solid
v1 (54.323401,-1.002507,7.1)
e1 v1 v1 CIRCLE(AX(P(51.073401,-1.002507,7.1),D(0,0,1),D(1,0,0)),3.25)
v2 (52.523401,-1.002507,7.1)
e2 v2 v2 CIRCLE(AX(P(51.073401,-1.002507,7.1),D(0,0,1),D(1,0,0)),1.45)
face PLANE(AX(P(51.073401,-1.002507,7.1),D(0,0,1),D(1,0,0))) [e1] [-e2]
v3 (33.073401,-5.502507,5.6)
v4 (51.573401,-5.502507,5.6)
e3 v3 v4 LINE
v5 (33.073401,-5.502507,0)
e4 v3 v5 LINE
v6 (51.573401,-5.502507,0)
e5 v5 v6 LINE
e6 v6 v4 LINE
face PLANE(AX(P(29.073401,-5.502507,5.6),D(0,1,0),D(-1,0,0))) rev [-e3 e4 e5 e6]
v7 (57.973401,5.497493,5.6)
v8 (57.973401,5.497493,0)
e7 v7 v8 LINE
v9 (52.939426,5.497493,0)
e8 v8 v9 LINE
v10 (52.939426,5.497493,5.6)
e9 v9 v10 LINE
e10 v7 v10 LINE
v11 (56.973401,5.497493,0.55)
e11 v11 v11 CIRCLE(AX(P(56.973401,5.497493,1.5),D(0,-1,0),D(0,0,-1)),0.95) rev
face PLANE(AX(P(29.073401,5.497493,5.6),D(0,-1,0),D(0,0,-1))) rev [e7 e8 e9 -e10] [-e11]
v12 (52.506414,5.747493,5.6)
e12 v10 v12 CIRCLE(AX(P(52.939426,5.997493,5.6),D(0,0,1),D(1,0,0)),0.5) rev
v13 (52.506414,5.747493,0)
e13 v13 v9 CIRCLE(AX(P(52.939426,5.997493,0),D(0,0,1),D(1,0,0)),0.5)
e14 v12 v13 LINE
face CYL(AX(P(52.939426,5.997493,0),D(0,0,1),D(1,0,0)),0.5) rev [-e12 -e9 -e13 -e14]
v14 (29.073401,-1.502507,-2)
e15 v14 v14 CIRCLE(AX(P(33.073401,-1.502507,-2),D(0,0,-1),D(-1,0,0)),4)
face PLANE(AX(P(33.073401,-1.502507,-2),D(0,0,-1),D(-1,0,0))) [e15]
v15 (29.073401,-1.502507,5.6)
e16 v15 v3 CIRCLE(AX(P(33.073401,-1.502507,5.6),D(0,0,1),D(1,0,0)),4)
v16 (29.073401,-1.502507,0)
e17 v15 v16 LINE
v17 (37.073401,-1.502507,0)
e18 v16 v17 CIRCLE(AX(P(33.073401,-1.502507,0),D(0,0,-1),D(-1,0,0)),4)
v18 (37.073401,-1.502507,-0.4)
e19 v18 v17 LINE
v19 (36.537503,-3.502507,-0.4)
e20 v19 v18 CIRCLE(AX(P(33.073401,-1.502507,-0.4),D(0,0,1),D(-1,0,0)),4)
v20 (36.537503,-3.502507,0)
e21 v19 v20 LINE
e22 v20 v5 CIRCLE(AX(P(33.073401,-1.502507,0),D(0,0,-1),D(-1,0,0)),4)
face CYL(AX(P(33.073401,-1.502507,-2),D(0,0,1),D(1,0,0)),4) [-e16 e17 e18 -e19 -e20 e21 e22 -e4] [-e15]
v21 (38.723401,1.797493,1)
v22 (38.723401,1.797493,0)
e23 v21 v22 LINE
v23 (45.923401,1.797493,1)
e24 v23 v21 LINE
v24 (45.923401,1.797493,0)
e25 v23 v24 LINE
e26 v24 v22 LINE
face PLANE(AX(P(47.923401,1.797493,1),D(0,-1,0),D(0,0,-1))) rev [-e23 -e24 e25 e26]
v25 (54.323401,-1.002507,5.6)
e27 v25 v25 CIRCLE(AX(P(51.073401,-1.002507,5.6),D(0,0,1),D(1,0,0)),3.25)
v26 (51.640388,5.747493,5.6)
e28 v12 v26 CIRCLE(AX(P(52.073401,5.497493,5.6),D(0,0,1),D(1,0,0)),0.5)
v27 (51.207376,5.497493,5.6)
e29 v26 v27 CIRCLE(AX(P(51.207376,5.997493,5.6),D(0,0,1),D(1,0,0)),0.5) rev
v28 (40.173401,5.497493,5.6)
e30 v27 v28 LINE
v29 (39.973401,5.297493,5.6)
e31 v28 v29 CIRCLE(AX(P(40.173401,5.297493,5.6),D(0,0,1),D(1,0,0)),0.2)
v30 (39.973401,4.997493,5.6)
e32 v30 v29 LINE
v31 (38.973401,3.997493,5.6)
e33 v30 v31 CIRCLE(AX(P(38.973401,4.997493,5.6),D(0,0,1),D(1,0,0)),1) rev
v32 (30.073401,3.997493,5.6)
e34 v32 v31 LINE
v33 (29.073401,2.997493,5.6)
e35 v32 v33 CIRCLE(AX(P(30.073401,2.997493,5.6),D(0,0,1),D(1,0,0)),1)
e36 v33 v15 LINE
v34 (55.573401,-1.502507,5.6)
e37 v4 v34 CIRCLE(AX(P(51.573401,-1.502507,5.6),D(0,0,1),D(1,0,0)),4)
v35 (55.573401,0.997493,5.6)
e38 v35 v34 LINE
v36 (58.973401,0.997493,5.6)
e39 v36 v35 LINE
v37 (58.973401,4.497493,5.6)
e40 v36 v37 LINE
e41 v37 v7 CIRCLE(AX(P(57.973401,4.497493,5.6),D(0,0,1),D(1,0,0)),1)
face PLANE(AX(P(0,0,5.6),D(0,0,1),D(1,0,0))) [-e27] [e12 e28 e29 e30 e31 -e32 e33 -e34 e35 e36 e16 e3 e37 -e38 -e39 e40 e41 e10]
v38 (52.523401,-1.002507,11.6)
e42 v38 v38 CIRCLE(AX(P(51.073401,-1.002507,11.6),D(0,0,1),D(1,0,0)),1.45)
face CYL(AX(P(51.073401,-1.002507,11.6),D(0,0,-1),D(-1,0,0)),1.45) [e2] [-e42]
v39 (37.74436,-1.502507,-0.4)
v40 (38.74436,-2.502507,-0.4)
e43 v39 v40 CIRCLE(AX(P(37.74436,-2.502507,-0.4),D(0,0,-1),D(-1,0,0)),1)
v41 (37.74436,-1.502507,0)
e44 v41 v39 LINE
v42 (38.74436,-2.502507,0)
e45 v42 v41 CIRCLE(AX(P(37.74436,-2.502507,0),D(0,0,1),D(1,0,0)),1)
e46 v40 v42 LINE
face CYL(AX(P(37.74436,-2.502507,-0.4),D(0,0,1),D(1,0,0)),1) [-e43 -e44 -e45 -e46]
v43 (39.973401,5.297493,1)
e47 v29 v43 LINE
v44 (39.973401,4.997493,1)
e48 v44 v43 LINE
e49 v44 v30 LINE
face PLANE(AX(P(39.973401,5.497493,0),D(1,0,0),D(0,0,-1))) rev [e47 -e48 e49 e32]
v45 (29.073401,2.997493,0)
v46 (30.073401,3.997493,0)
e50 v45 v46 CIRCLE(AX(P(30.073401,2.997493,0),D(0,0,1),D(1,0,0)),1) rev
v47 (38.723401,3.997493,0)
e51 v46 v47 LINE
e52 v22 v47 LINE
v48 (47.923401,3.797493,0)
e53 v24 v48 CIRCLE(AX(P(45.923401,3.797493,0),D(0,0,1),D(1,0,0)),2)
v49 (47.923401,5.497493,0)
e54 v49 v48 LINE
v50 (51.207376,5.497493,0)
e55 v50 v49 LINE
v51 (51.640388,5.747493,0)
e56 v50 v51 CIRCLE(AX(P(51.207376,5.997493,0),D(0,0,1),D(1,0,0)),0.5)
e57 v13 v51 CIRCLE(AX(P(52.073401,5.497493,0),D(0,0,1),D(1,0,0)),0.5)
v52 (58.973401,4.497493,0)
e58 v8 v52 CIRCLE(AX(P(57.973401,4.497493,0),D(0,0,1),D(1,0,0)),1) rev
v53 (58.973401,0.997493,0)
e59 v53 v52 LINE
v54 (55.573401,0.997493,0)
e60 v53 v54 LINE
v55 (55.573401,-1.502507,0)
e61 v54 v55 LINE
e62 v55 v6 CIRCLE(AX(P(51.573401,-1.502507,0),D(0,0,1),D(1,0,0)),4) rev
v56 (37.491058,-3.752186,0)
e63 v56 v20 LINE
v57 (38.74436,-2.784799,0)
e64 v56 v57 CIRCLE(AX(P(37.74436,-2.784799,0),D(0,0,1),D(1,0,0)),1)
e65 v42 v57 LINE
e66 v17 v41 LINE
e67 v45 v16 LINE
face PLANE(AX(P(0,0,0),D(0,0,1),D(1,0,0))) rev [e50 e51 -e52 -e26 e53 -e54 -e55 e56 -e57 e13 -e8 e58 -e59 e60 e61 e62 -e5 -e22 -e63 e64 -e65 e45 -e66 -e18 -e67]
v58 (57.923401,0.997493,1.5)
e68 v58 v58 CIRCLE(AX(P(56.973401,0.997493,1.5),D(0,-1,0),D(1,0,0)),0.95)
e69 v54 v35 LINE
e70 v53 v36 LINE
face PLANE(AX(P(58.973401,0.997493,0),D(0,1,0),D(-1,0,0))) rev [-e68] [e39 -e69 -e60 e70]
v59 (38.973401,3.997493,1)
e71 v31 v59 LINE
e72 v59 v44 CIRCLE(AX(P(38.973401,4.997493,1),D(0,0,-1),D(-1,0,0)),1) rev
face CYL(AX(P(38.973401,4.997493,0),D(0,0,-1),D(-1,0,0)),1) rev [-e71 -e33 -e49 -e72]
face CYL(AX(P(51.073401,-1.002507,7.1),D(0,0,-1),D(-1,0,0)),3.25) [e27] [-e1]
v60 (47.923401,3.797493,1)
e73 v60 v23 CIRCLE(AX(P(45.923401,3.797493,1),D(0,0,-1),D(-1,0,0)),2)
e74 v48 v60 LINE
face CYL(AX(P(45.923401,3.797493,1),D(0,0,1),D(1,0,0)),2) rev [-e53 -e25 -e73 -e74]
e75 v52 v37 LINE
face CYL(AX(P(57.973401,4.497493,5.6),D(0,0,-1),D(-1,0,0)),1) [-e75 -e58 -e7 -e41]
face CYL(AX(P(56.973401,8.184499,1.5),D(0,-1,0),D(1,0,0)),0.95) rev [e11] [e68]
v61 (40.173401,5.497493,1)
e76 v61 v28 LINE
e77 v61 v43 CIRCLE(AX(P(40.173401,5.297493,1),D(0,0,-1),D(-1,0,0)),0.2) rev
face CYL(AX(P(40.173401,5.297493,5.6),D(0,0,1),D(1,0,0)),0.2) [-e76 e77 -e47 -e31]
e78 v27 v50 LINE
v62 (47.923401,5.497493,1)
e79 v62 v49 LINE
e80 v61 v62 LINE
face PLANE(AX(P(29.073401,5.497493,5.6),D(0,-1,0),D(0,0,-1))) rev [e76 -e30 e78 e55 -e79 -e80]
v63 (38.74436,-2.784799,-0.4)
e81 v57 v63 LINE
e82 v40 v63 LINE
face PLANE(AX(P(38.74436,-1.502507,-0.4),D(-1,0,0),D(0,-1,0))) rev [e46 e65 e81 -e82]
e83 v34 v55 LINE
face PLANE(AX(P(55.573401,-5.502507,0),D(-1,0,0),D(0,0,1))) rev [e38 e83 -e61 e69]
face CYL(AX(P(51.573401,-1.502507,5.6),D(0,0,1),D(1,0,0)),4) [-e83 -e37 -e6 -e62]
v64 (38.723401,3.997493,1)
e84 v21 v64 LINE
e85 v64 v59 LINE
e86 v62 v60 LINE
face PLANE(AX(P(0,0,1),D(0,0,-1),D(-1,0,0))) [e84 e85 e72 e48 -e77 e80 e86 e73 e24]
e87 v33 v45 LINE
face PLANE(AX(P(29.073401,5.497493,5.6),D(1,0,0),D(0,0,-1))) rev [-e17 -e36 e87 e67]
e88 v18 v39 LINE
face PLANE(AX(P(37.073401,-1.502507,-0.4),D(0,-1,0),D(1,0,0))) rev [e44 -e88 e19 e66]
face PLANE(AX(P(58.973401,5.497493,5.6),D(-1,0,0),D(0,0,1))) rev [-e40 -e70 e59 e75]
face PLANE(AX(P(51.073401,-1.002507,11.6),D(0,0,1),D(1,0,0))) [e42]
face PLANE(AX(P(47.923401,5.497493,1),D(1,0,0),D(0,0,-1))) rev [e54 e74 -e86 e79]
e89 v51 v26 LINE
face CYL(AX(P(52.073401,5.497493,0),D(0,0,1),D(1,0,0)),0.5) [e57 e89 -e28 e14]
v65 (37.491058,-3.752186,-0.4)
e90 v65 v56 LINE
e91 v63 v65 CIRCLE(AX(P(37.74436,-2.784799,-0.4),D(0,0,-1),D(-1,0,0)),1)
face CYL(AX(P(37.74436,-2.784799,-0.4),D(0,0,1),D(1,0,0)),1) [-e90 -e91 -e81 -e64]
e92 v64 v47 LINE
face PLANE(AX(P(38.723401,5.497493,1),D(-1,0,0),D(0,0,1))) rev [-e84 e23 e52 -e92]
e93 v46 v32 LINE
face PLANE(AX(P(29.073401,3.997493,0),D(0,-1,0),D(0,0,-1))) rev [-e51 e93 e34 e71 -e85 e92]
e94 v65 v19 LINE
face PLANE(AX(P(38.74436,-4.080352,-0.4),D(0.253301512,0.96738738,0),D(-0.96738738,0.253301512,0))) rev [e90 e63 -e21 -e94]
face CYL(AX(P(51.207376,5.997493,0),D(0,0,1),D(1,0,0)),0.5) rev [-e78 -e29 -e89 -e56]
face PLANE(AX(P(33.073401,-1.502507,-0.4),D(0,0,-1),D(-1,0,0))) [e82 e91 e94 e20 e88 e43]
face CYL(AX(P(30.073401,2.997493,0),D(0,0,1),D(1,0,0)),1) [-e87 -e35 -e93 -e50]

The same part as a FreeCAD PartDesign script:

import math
import FreeCAD as App
import Part
import Sketcher


def edges_at(feature, points):
    """Names of the edges that pass closest to the given points."""
    edges = feature.Shape.Edges
    near = lambda p: min(range(len(edges)), key=lambda i: edges[i].distToShape(Part.Vertex(*p))[0])
    return sorted({f"Edge{near(p) + 1}" for p in points})


def add_polygon(sketch, points):
    """Adds a closed chain of lines whose ends are joined by coincident constraints."""
    first, n = sketch.GeometryCount, len(points)
    for a, b in zip(points, points[1:] + points[:1]):
        sketch.addGeometry(Part.LineSegment(App.Vector(*a, 0), App.Vector(*b, 0)), False)
    for i in range(n):
        sketch.addConstraint(Sketcher.Constraint("Coincident", first + i, 2, first + (i + 1) % n, 1))

doc = App.newDocument("Part")
body = doc.addObject("PartDesign::Body", "Body")

# Sketch on XY plane
sketch1 = doc.addObject("Sketcher::SketchObject", "Sketch")
body.addObject(sketch1)
sketch1.AttachmentSupport = (doc.XY_Plane, [""])
sketch1.MapMode = "FlatFace"
add_polygon(sketch1, [(29.073401, 5.497493), (29.073401, -5.502507), (58.973401, -5.502507), (58.973401, 5.497493)])  # lines 0-3
sketch1.addConstraint([
    Sketcher.Constraint("Vertical", 0),
    Sketcher.Constraint("Horizontal", 1),
    Sketcher.Constraint("Vertical", 2),
    Sketcher.Constraint("Horizontal", 3),
    Sketcher.Constraint("DistanceY", 0, 2, 0, 1, 11.0),
    Sketcher.Constraint("DistanceX", 1, 1, 1, 2, 29.9),
    Sketcher.Constraint("DistanceX", -1, 1, 0, 2, 29.073401),
    Sketcher.Constraint("DistanceY", 0, 2, -1, 1, 5.502507),
])
pad1 = doc.addObject("PartDesign::Pad", "Pad")
body.addObject(pad1)
pad1.Profile = sketch1
pad1.Length = 5.6

# Sketch on XY plane
sketch2 = doc.addObject("Sketcher::SketchObject", "Sketch001")
body.addObject(sketch2)
sketch2.AttachmentSupport = (doc.XY_Plane, [""])
sketch2.MapMode = "FlatFace"
sketch2.addGeometry(Part.Circle(App.Vector(33.073401, -1.502507, 0), App.Vector(0, 0, 1), 4), False)
sketch2.addConstraint([
    Sketcher.Constraint("Diameter", 0, 8.0),
    Sketcher.Constraint("DistanceX", -1, 1, 0, 3, 33.073401),
    Sketcher.Constraint("DistanceY", 0, 3, -1, 1, 1.502507),
])
pad2 = doc.addObject("PartDesign::Pad", "Pad001")
body.addObject(pad2)
pad2.Profile = sketch2
pad2.Length = 2
pad2.Reversed = True

# Sketch on XY plane
sketch3 = doc.addObject("Sketcher::SketchObject", "Sketch002")
body.addObject(sketch3)
sketch3.AttachmentSupport = (doc.XY_Plane, [""])
sketch3.MapMode = "FlatFace"
sketch3.AttachmentOffset = App.Placement(App.Vector(0, 0, 5.6), App.Rotation())
sketch3.addGeometry([
    Part.LineSegment(App.Vector(29.073401, -5.502507, 0), App.Vector(29.073401, -1.502507, 0)),
    Part.ArcOfCircle(Part.Circle(App.Vector(33.073401, -1.502507, 0), App.Vector(0, 0, 1), 4), math.radians(180), math.radians(270)),
    Part.LineSegment(App.Vector(33.073401, -5.502507, 0), App.Vector(29.073401, -5.502507, 0)),
], False)
sketch3.addConstraint([
    Sketcher.Constraint("Tangent", 0, 2, 1, 1),
    Sketcher.Constraint("Tangent", 1, 2, 2, 1),
    Sketcher.Constraint("Coincident", 2, 2, 0, 1),
    Sketcher.Constraint("Vertical", 0),
    Sketcher.Constraint("Horizontal", 2),
    Sketcher.Constraint("Radius", 1, 4.0),
    Sketcher.Constraint("DistanceX", -1, 1, 1, 3, 33.073401),
    Sketcher.Constraint("DistanceY", 1, 3, -1, 1, 1.502507),
])
pocket1 = doc.addObject("PartDesign::Pocket", "Pocket")
body.addObject(pocket1)
pocket1.Profile = sketch3
pocket1.Length = 5.6

# Sketch on XY plane
sketch4 = doc.addObject("Sketcher::SketchObject", "Sketch003")
body.addObject(sketch4)
sketch4.AttachmentSupport = (doc.XY_Plane, [""])
sketch4.MapMode = "FlatFace"
sketch4.AttachmentOffset = App.Placement(App.Vector(0, 0, 5.6), App.Rotation())
sketch4.addGeometry(Part.Circle(App.Vector(51.073401, -1.002507, 0), App.Vector(0, 0, 1), 3.25), False)
sketch4.addConstraint([
    Sketcher.Constraint("Diameter", 0, 6.5),
    Sketcher.Constraint("DistanceX", -1, 1, 0, 3, 51.073401),
    Sketcher.Constraint("DistanceY", 0, 3, -1, 1, 1.002507),
])
pad3 = doc.addObject("PartDesign::Pad", "Pad002")
body.addObject(pad3)
pad3.Profile = sketch4
pad3.Length = 1.5

# Sketch on XY plane
sketch5 = doc.addObject("Sketcher::SketchObject", "Sketch004")
body.addObject(sketch5)
sketch5.AttachmentSupport = (doc.XY_Plane, [""])
sketch5.MapMode = "FlatFace"
sketch5.AttachmentOffset = App.Placement(App.Vector(0, 0, 7.1), App.Rotation())
sketch5.addGeometry(Part.Circle(App.Vector(51.073401, -1.002507, 0), App.Vector(0, 0, 1), 1.45), False)
sketch5.addConstraint([
    Sketcher.Constraint("Diameter", 0, 2.9),
    Sketcher.Constraint("DistanceX", -1, 1, 0, 3, 51.073401),
    Sketcher.Constraint("DistanceY", 0, 3, -1, 1, 1.002507),
])
pad4 = doc.addObject("PartDesign::Pad", "Pad003")
body.addObject(pad4)
pad4.Profile = sketch5
pad4.Length = 4.5

# Sketch on XY plane
sketch6 = doc.addObject("Sketcher::SketchObject", "Sketch005")
body.addObject(sketch6)
sketch6.AttachmentSupport = (doc.XY_Plane, [""])
sketch6.MapMode = "FlatFace"
sketch6.AttachmentOffset = App.Placement(App.Vector(0, 0, 5.6), App.Rotation())
add_polygon(sketch6, [(55.573401, 0.997493), (55.573401, -5.502507), (58.973401, -5.502507), (58.973401, 0.997493)])  # lines 0-3
sketch6.addConstraint([
    Sketcher.Constraint("Vertical", 0),
    Sketcher.Constraint("Horizontal", 1),
    Sketcher.Constraint("Vertical", 2),
    Sketcher.Constraint("Horizontal", 3),
    Sketcher.Constraint("DistanceX", 1, 1, 1, 2, 3.4),
    Sketcher.Constraint("DistanceY", 0, 2, 0, 1, 6.5),
    Sketcher.Constraint("DistanceX", -1, 1, 0, 2, 55.573401),
    Sketcher.Constraint("DistanceY", 0, 2, -1, 1, 5.502507),
])
pocket2 = doc.addObject("PartDesign::Pocket", "Pocket001")
body.addObject(pocket2)
pocket2.Profile = sketch6
pocket2.Length = 5.6
doc.recompute()

fillet = doc.addObject("PartDesign::Fillet", "Fillet")
body.addObject(fillet)
fillet.Base = (pocket2, edges_at(pocket2, [(55.573, -5.503, 2.8)]))
fillet.Radius = 4

# Sketch on XY plane
sketch7 = doc.addObject("Sketcher::SketchObject", "Sketch006")
body.addObject(sketch7)
sketch7.AttachmentSupport = (doc.XY_Plane, [""])
sketch7.MapMode = "FlatFace"
sketch7.AttachmentOffset = App.Placement(App.Vector(0, 0, 5.6), App.Rotation())
sketch7.addGeometry(Part.Circle(App.Vector(52.073401, 5.497493, 0), App.Vector(0, 0, 1), 0.5), False)
sketch7.addConstraint([
    Sketcher.Constraint("Diameter", 0, 1.0),
    Sketcher.Constraint("DistanceX", -1, 1, 0, 3, 52.073401),
    Sketcher.Constraint("DistanceY", -1, 1, 0, 3, 5.497493),
])
pad5 = doc.addObject("PartDesign::Pad", "Pad004")
body.addObject(pad5)
pad5.Profile = sketch7
pad5.Length = 5.6
pad5.Reversed = True
doc.recompute()

fillet2 = doc.addObject("PartDesign::Fillet", "Fillet001")
body.addObject(fillet2)
fillet2.Base = (pad5, edges_at(pad5, [(52.573, 5.497, 2.8), (51.573, 5.497, 2.8)]))
fillet2.Radius = 0.5

# Sketch on XZ plane
sketch8 = doc.addObject("Sketcher::SketchObject", "Sketch007")
body.addObject(sketch8)
sketch8.AttachmentSupport = (doc.XZ_Plane, [""])
sketch8.MapMode = "FlatFace"
sketch8.AttachmentOffset = App.Placement(App.Vector(0, 0, -0.997493), App.Rotation())
sketch8.addGeometry(Part.Circle(App.Vector(56.973401, 1.5, 0), App.Vector(0, 0, 1), 0.95), False)
sketch8.addConstraint([
    Sketcher.Constraint("Diameter", 0, 1.9),
    Sketcher.Constraint("DistanceY", -1, 1, 0, 3, 1.5),
    Sketcher.Constraint("DistanceX", -1, 1, 0, 3, 56.973401),
])
pocket3 = doc.addObject("PartDesign::Pocket", "Pocket002")
body.addObject(pocket3)
pocket3.Profile = sketch8
pocket3.Length = 4.5
doc.recompute()

fillet3 = doc.addObject("PartDesign::Fillet", "Fillet002")
body.addObject(fillet3)
fillet3.Base = (pocket3, edges_at(pocket3, [(58.973, 5.497, 2.8)]))
fillet3.Radius = 1

# Sketch on XY plane
sketch9 = doc.addObject("Sketcher::SketchObject", "Sketch008")
body.addObject(sketch9)
sketch9.AttachmentSupport = (doc.XY_Plane, [""])
sketch9.MapMode = "FlatFace"
sketch9.AttachmentOffset = App.Placement(App.Vector(0, 0, 5.6), App.Rotation())
add_polygon(sketch9, [(29.073401, 5.497493), (29.073401, 3.997493), (39.973401, 3.997493), (39.973401, 5.497493)])  # lines 0-3
sketch9.addConstraint([
    Sketcher.Constraint("Vertical", 0),
    Sketcher.Constraint("Horizontal", 1),
    Sketcher.Constraint("Vertical", 2),
    Sketcher.Constraint("Horizontal", 3),
    Sketcher.Constraint("DistanceX", 1, 1, 1, 2, 10.9),
    Sketcher.Constraint("DistanceY", 0, 2, 0, 1, 1.5),
    Sketcher.Constraint("DistanceX", -1, 1, 0, 2, 29.073401),
    Sketcher.Constraint("DistanceY", -1, 1, 0, 2, 3.997493),
])
pocket4 = doc.addObject("PartDesign::Pocket", "Pocket003")
body.addObject(pocket4)
pocket4.Profile = sketch9
pocket4.Length = 5.6
doc.recompute()

fillet4 = doc.addObject("PartDesign::Fillet", "Fillet003")
body.addObject(fillet4)
fillet4.Base = (pocket4, edges_at(pocket4, [(29.073, 3.997, 2.8)]))
fillet4.Radius = 1
doc.recompute()

fillet5 = doc.addObject("PartDesign::Fillet", "Fillet004")
body.addObject(fillet5)
fillet5.Base = (fillet4, edges_at(fillet4, [(39.973, 3.997, 2.8)]))
fillet5.Radius = 1
doc.recompute()

fillet6 = doc.addObject("PartDesign::Fillet", "Fillet005")
body.addObject(fillet6)
fillet6.Base = (fillet5, edges_at(fillet5, [(39.973, 5.497, 2.8)]))
fillet6.Radius = 0.2

# Sketch on XY plane
sketch10 = doc.addObject("Sketcher::SketchObject", "Sketch009")
body.addObject(sketch10)
sketch10.AttachmentSupport = (doc.XY_Plane, [""])
sketch10.MapMode = "FlatFace"
add_polygon(sketch10, [(47.923401, 5.497493), (47.923401, 1.797493), (38.723401, 1.797493), (38.723401, 5.497493)])  # lines 0-3
sketch10.addConstraint([
    Sketcher.Constraint("Vertical", 0),
    Sketcher.Constraint("Horizontal", 1),
    Sketcher.Constraint("Vertical", 2),
    Sketcher.Constraint("Horizontal", 3),
    Sketcher.Constraint("DistanceX", 1, 2, 1, 1, 9.2),
    Sketcher.Constraint("DistanceY", 0, 2, 0, 1, 3.7),
    Sketcher.Constraint("DistanceX", -1, 1, 0, 2, 47.923401),
    Sketcher.Constraint("DistanceY", -1, 1, 0, 2, 1.797493),
])
pocket5 = doc.addObject("PartDesign::Pocket", "Pocket004")
body.addObject(pocket5)
pocket5.Profile = sketch10
pocket5.Length = 1
pocket5.Reversed = True
doc.recompute()

fillet7 = doc.addObject("PartDesign::Fillet", "Fillet006")
body.addObject(fillet7)
fillet7.Base = (pocket5, edges_at(pocket5, [(47.923, 1.797, 0.5)]))
fillet7.Radius = 2

# Sketch on XY plane
sketch11 = doc.addObject("Sketcher::SketchObject", "Sketch010")
body.addObject(sketch11)
sketch11.AttachmentSupport = (doc.XY_Plane, [""])
sketch11.MapMode = "FlatFace"
sketch11.addGeometry([
    Part.LineSegment(App.Vector(37.073401, -1.502507, 0), App.Vector(38.74436, -1.502507, 0)),
    Part.LineSegment(App.Vector(38.74436, -1.502507, 0), App.Vector(38.74436, -4.080352, 0)),
    Part.LineSegment(App.Vector(38.74436, -4.080352, 0), App.Vector(36.537503, -3.502507, 0)),
    Part.ArcOfCircle(Part.Circle(App.Vector(33.073401, -1.502507, 0), App.Vector(0, 0, 1), 4), math.radians(-30), math.radians(0)),
], False)
sketch11.addConstraint([
    Sketcher.Constraint("Coincident", 0, 2, 1, 1),
    Sketcher.Constraint("Coincident", 1, 2, 2, 1),
    Sketcher.Constraint("Coincident", 2, 2, 3, 1),
    Sketcher.Constraint("Coincident", 3, 2, 0, 1),
    Sketcher.Constraint("Horizontal", 0),
    Sketcher.Constraint("Vertical", 1),
    Sketcher.Constraint("Horizontal", 3, 3, 0, 2),
    Sketcher.Constraint("Radius", 3, 4.0),
    Sketcher.Constraint("DistanceY", 2, 2, 0, 2, 2.0),
    Sketcher.Constraint("DistanceX", 0, 1, 0, 2, 1.670959),
    Sketcher.Constraint("DistanceX", -1, 1, 3, 3, 33.073401),
    Sketcher.Constraint("DistanceY", 1, 2, 1, 1, 2.577845),
    Sketcher.Constraint("DistanceY", 1, 2, -1, 1, 4.080352),
])
pad6 = doc.addObject("PartDesign::Pad", "Pad005")
body.addObject(pad6)
pad6.Profile = sketch11
pad6.Length = 0.4
pad6.Reversed = True
doc.recompute()

fillet8 = doc.addObject("PartDesign::Fillet", "Fillet007")
body.addObject(fillet8)
fillet8.Base = (pad6, edges_at(pad6, [(38.744, -1.503, -0.2), (38.744, -4.08, -0.2)]))
fillet8.Radius = 1

doc.recompute()
